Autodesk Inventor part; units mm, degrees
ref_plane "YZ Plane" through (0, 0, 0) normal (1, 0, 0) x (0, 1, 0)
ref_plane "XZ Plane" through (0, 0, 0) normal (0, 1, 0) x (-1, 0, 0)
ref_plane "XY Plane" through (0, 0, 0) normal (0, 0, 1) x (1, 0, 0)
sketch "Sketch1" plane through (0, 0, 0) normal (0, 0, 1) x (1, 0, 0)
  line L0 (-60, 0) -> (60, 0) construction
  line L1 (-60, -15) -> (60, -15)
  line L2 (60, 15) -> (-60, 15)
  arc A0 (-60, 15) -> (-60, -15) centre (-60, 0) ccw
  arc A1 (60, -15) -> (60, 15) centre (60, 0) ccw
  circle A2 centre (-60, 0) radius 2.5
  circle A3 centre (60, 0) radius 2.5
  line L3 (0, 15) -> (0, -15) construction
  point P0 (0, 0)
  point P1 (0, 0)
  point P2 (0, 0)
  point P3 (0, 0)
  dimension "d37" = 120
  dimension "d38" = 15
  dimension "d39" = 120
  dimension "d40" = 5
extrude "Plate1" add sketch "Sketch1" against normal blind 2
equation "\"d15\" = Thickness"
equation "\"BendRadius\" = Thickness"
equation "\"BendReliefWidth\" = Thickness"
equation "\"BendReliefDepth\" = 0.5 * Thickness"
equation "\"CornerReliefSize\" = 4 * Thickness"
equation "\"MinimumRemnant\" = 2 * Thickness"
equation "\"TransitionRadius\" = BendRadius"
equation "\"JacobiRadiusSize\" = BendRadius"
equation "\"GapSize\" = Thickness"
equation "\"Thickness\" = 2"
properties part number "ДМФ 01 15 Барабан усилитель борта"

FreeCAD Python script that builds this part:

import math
import FreeCAD as App
import Part
import Sketcher

V = App.Vector

doc = App.newDocument("Part")
body = doc.addObject("PartDesign::Body", "Body")

# Sketch on XY plane
sketch1 = doc.addObject("Sketcher::SketchObject", "Sketch")
body.addObject(sketch1)
sketch1.AttachmentSupport = (doc.XY_Plane, [""])
sketch1.MapMode = "FlatFace"
sketch1.addGeometry([
    Part.ArcOfCircle(Part.Circle(V(-60, 0, 0), V(0, 0, 1), 15), math.radians(90), math.radians(270)),  # 0
    Part.LineSegment(V(-60, -15, 0), V(60, -15, 0)),  # 1
    Part.ArcOfCircle(Part.Circle(V(60, 0, 0), V(0, 0, 1), 15), math.radians(-90), math.radians(90)),  # 2
    Part.LineSegment(V(60, 15, 0), V(-60, 15, 0)),  # 3
    Part.Circle(V(-60, 0, 0), V(0, 0, 1), 2.5),  # 4
    Part.Circle(V(60, 0, 0), V(0, 0, 1), 2.5),  # 5
], False)
sketch1.addConstraint([
    Sketcher.Constraint("Tangent", 0, 2, 1, 1),
    Sketcher.Constraint("Tangent", 1, 2, 2, 1),
    Sketcher.Constraint("Tangent", 2, 2, 3, 1),
    Sketcher.Constraint("Tangent", 3, 2, 0, 1),
    Sketcher.Constraint("Horizontal", 1),
    Sketcher.Constraint("Horizontal", 3),
    Sketcher.Constraint("Coincident", 4, 3, 0, 3),
    Sketcher.Constraint("Coincident", 5, 3, 2, 3),
    Sketcher.Constraint("Equal", 4, 5),
    Sketcher.Constraint("Symmetric", 0, 3, 2, 3, -1, 1),
    Sketcher.Constraint("Diameter", 4, 5.0),
    Sketcher.Constraint("Radius", 0, 15.0),
    Sketcher.Constraint("DistanceX", 1, 1, 1, 2, 120.0),
])
pad1 = doc.addObject("PartDesign::Pad", "Pad")
body.addObject(pad1)
pad1.Profile = sketch1
pad1.Length = 2
pad1.Reversed = True

doc.recompute()
